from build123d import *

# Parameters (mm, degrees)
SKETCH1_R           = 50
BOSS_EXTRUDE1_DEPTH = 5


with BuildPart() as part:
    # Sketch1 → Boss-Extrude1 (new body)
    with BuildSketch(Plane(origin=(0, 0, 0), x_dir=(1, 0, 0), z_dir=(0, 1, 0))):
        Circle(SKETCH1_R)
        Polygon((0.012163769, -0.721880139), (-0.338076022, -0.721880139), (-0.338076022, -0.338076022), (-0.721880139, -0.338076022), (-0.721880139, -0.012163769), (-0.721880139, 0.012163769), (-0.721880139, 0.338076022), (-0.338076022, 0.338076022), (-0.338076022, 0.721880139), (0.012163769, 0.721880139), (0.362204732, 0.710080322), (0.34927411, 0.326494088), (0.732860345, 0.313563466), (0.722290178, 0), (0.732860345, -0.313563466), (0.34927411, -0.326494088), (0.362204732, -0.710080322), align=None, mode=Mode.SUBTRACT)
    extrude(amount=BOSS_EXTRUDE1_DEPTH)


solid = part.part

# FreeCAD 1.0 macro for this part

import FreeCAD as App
import Part
import Sketcher
from FreeCAD import Vector

doc = App.newDocument("Part")
body = doc.addObject("PartDesign::Body", "Body")

sketch1 = body.newObject("Sketcher::SketchObject", "Sketch")
sketch1.AttachmentSupport = (doc.getObject("XZ_Plane"), [""])
sketch1.MapMode = "FlatFace"
sketch1.addGeometry([
    Part.Circle(Vector(0, 0, 0), Vector(0, 0, 1), 50),
    Part.LineSegment(Vector(0.36, 0.71, 0), Vector(0.01, 0.72, 0)),
    Part.LineSegment(Vector(0.01, 0.72, 0), Vector(-0.34, 0.72, 0)),
    Part.LineSegment(Vector(-0.34, 0.72, 0), Vector(-0.34, 0.34, 0)),
    Part.LineSegment(Vector(-0.34, 0.34, 0), Vector(-0.72, 0.34, 0)),
    Part.LineSegment(Vector(-0.72, 0.34, 0), Vector(-0.72, -0.34, 0)),
    Part.LineSegment(Vector(-0.72, -0.34, 0), Vector(-0.34, -0.34, 0)),
    Part.LineSegment(Vector(-0.34, -0.34, 0), Vector(-0.34, -0.72, 0)),
    Part.LineSegment(Vector(-0.34, -0.72, 0), Vector(0.01, -0.72, 0)),
    Part.LineSegment(Vector(0.01, -0.72, 0), Vector(0.36, -0.71, 0)),
    Part.LineSegment(Vector(0.36, -0.71, 0), Vector(0.35, -0.33, 0)),
    Part.LineSegment(Vector(0.35, -0.33, 0), Vector(0.73, -0.31, 0)),
    Part.LineSegment(Vector(0.73, -0.31, 0), Vector(0.72, 0, 0)),
    Part.LineSegment(Vector(0.72, 0, 0), Vector(0.73, 0.31, 0)),
    Part.LineSegment(Vector(0.73, 0.31, 0), Vector(0.35, 0.33, 0)),
    Part.LineSegment(Vector(0.35, 0.33, 0), Vector(0.36, 0.71, 0)),
], False)
sketch1.addConstraint([
    Sketcher.Constraint("Coincident", 1, 2, 2, 1),
    Sketcher.Constraint("Coincident", 2, 2, 3, 1),
    Sketcher.Constraint("Coincident", 3, 2, 4, 1),
    Sketcher.Constraint("Coincident", 4, 2, 5, 1),
    Sketcher.Constraint("Coincident", 5, 2, 6, 1),
    Sketcher.Constraint("Coincident", 6, 2, 7, 1),
    Sketcher.Constraint("Coincident", 7, 2, 8, 1),
    Sketcher.Constraint("Coincident", 8, 2, 9, 1),
    Sketcher.Constraint("Coincident", 9, 2, 10, 1),
    Sketcher.Constraint("Coincident", 10, 2, 11, 1),
    Sketcher.Constraint("Coincident", 11, 2, 12, 1),
    Sketcher.Constraint("Coincident", 12, 2, 13, 1),
    Sketcher.Constraint("Coincident", 13, 2, 14, 1),
    Sketcher.Constraint("Coincident", 14, 2, 15, 1),
    Sketcher.Constraint("Coincident", 15, 2, 1, 1),
    Sketcher.Constraint("Horizontal", 2),
    Sketcher.Constraint("Vertical", 3),
    Sketcher.Constraint("Horizontal", 4),
    Sketcher.Constraint("Vertical", 5),
    Sketcher.Constraint("Horizontal", 6),
    Sketcher.Constraint("Vertical", 7),
    Sketcher.Constraint("Horizontal", 8),
    Sketcher.Constraint("Coincident", 0, 3, -1, 1),
    Sketcher.Constraint("Symmetric", 3, 2, 6, 2, -1),
    Sketcher.Constraint("Symmetric", 1, 2, 8, 2, -1),
    Sketcher.Constraint("Symmetric", 11, 2, 13, 2, -1),
    Sketcher.Constraint("Symmetric", 10, 2, 14, 2, -1),
    Sketcher.Constraint("Symmetric", 9, 2, 15, 2, -1),
    Sketcher.Constraint("PointOnObject", 12, 2, -1),
    Sketcher.Constraint("Perpendicular", 9, 10),
    Sketcher.Constraint("Perpendicular", 10, 11),
    Sketcher.Constraint("Perpendicular", 11, 12),
    Sketcher.Constraint("Equal", 6, 3),
    Sketcher.Constraint("Equal", 10, 11),
    Sketcher.Constraint("Diameter", 0, 100.0),
    Sketcher.Constraint("DistanceX", 2, 2, 2, 1, 0.35024),
    Sketcher.Constraint("DistanceY", 8, 2, 9, 2, 0.0118),
    Sketcher.Constraint("Distance", 1, 0.35024),
    Sketcher.Constraint("Distance", 12, 0.313742),
    Sketcher.Constraint("DistanceX", 4, 2, 4, 1, 0.383804),
    Sketcher.Constraint("DistanceY", 5, 2, 5, 1, 0.676152),
    Sketcher.Constraint("DistanceX", 4, 2, -1, 1, 0.72188),
])
pad1 = body.newObject("PartDesign::Pad", "Pad")
pad1.Profile = sketch1
pad1.Length = 5
pad1.Reversed = True

doc.recompute()
